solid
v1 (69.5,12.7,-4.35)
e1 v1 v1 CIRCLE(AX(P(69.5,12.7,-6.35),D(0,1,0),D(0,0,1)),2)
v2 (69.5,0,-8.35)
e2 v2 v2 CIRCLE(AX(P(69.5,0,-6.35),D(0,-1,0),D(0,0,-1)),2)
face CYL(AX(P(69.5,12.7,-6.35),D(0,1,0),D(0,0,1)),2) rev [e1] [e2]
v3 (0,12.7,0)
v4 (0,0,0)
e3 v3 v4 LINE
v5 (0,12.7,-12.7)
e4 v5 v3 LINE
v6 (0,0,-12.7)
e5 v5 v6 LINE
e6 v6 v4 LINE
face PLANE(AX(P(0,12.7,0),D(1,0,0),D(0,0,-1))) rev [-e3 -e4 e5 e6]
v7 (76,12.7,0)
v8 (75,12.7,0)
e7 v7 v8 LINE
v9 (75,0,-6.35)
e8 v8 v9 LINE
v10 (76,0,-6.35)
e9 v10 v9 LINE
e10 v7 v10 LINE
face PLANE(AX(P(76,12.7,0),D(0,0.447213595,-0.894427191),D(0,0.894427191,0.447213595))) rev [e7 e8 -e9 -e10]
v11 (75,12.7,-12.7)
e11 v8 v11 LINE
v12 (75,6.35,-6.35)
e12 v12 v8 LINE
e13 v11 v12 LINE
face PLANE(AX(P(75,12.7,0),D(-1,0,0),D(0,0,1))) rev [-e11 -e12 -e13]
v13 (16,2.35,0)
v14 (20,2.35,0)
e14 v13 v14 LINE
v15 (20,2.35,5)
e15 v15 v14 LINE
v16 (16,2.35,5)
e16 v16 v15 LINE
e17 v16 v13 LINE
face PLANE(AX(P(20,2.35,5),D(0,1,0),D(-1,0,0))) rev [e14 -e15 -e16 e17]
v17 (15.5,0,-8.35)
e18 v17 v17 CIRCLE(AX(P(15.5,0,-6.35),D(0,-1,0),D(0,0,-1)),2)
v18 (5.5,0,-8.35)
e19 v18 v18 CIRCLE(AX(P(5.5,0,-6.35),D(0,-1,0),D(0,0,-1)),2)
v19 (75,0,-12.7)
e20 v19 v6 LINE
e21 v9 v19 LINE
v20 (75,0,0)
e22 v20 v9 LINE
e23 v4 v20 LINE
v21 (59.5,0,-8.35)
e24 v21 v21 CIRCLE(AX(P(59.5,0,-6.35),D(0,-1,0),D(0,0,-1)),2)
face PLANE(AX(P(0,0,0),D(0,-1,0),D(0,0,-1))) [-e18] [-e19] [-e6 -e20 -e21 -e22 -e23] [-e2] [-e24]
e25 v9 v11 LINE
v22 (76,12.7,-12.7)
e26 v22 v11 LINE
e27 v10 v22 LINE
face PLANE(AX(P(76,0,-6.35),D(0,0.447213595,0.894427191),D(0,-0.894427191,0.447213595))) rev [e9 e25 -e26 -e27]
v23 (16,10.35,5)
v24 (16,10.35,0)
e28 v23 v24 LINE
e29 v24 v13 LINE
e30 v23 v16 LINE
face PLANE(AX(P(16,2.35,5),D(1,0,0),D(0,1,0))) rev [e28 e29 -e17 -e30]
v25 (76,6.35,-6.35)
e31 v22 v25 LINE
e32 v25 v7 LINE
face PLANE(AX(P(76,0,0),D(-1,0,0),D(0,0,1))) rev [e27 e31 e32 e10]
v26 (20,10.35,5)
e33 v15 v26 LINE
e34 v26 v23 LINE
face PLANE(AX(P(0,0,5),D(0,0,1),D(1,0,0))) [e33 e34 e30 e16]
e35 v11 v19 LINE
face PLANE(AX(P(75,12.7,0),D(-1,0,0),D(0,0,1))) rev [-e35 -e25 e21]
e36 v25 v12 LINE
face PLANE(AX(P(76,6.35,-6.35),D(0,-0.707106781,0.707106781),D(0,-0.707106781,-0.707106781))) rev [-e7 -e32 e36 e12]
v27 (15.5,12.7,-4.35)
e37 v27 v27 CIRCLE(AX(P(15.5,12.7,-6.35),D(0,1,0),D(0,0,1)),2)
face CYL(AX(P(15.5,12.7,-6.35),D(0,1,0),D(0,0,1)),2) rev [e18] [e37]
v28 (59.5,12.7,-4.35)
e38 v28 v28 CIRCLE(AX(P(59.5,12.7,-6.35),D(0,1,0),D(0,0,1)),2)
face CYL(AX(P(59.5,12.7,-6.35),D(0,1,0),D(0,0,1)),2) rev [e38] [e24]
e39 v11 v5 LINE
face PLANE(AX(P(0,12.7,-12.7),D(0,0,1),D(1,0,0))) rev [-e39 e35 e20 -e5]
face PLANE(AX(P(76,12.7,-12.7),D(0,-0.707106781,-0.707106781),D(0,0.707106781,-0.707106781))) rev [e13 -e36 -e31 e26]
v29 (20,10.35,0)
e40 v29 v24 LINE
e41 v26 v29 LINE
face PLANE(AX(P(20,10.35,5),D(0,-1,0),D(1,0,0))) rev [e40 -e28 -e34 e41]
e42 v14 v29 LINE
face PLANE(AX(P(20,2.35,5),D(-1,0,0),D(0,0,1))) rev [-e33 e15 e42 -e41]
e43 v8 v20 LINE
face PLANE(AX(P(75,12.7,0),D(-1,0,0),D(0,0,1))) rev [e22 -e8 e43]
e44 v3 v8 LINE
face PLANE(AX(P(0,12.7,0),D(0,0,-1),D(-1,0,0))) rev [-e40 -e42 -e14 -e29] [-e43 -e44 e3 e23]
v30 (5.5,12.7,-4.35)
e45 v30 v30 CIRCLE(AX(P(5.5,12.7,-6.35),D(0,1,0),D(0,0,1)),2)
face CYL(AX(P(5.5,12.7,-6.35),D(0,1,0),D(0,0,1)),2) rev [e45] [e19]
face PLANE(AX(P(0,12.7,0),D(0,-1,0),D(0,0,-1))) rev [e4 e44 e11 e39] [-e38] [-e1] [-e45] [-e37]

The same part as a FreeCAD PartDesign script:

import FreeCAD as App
import Part
import Sketcher
from FreeCAD import Vector

doc = App.newDocument("Part")
body = doc.addObject("PartDesign::Body", "Body")

# Sketch on XZ plane
sketch1 = doc.addObject("Sketcher::SketchObject", "Sketch")
body.addObject(sketch1)
sketch1.AttachmentSupport = (doc.XZ_Plane, [""])
sketch1.MapMode = "FlatFace"
sketch1.addGeometry([
    Part.LineSegment(Vector(0, -13, 0), Vector(0, 0, 0)),
    Part.LineSegment(Vector(0, 0, 0), Vector(75, 0, 0)),
    Part.LineSegment(Vector(75, 0, 0), Vector(75, -13, 0)),
    Part.LineSegment(Vector(75, -13, 0), Vector(0, -13, 0)),
], False)
sketch1.addConstraint([
    Sketcher.Constraint("Coincident", 0, 2, 1, 1),
    Sketcher.Constraint("Coincident", 1, 2, 2, 1),
    Sketcher.Constraint("Coincident", 2, 2, 3, 1),
    Sketcher.Constraint("Coincident", 3, 2, 0, 1),
    Sketcher.Constraint("Vertical", 0),
    Sketcher.Constraint("Horizontal", 1),
    Sketcher.Constraint("Vertical", 2),
    Sketcher.Constraint("Horizontal", 3),
    Sketcher.Constraint("Coincident", 0, 2, -1, 1),
    Sketcher.Constraint("DistanceX", 1, 1, 1, 2, 75.0),
    Sketcher.Constraint("DistanceY", 0, 1, 0, 2, 12.7),
])
pad1 = doc.addObject("PartDesign::Pad", "Pad")
body.addObject(pad1)
pad1.Profile = sketch1
pad1.Length = 12.7
pad1.Reversed = True

# Sketch on XZ plane
sketch2 = doc.addObject("Sketcher::SketchObject", "Sketch001")
body.addObject(sketch2)
sketch2.AttachmentSupport = (doc.XZ_Plane, [""])
sketch2.MapMode = "FlatFace"
sketch2.AttachmentOffset = App.Placement(Vector(0, 0, -12.7), App.Rotation())
sketch2.addGeometry([
    Part.Circle(Vector(69.5, -6.3, 0), Vector(0, 0, 1), 2),
    Part.Circle(Vector(59.5, -6.3, 0), Vector(0, 0, 1), 2),
    Part.Circle(Vector(5.5, -6.3, 0), Vector(0, 0, 1), 2),
    Part.Circle(Vector(15.5, -6.3, 0), Vector(0, 0, 1), 2),
], False)
sketch2.addConstraint([
    Sketcher.Constraint("Equal", 0, 1),
    Sketcher.Constraint("Equal", 1, 2),
    Sketcher.Constraint("Equal", 2, 3),
    Sketcher.Constraint("Horizontal", 0, 3, 1, 3),
    Sketcher.Constraint("Horizontal", 1, 3, 2, 3),
    Sketcher.Constraint("Horizontal", 2, 3, 3, 3),
    Sketcher.Constraint("Diameter", 0, 4.0),
    Sketcher.Constraint("DistanceX", 1, 3, 0, 3, 10.0),
    Sketcher.Constraint("DistanceX", 2, 3, 1, 3, 54.0),
    Sketcher.Constraint("DistanceX", 2, 3, 3, 3, 10.0),
    Sketcher.Constraint("DistanceX", -1, 1, 0, 3, 69.5),
    Sketcher.Constraint("DistanceY", 0, 3, -1, 1, 6.35),
])
doc.recompute()
hole = doc.addObject("PartDesign::Hole", "Hole")
body.addObject(hole)
hole.Profile = sketch2
hole.ThreadType = "None"
hole.Diameter = 4
hole.DepthType = "Dimension"
hole.Depth = 117.6291
hole.DrillPoint = "Angled"
hole.DrillPointAngle = 118
hole.Reversed = True

# Sketch on XY plane
sketch3 = doc.addObject("Sketcher::SketchObject", "Sketch002")
body.addObject(sketch3)
sketch3.AttachmentSupport = (doc.XY_Plane, [""])
sketch3.MapMode = "FlatFace"
sketch3.addGeometry([
    Part.LineSegment(Vector(16, 10.3, 0), Vector(16, 2.4, 0)),
    Part.LineSegment(Vector(16, 2.4, 0), Vector(20, 2.4, 0)),
    Part.LineSegment(Vector(20, 2.4, 0), Vector(20, 10.3, 0)),
    Part.LineSegment(Vector(20, 10.3, 0), Vector(16, 10.3, 0)),
], False)
sketch3.addConstraint([
    Sketcher.Constraint("Coincident", 0, 2, 1, 1),
    Sketcher.Constraint("Coincident", 1, 2, 2, 1),
    Sketcher.Constraint("Coincident", 2, 2, 3, 1),
    Sketcher.Constraint("Coincident", 3, 2, 0, 1),
    Sketcher.Constraint("Vertical", 0),
    Sketcher.Constraint("Horizontal", 1),
    Sketcher.Constraint("Vertical", 2),
    Sketcher.Constraint("Horizontal", 3),
    Sketcher.Constraint("DistanceX", 1, 1, 1, 2, 4.0),
    Sketcher.Constraint("DistanceY", 0, 2, 0, 1, 8.0),
    Sketcher.Constraint("DistanceX", -1, 1, 0, 2, 16.0),
    Sketcher.Constraint("DistanceY", -1, 1, 0, 2, 2.35),
])
pad2 = doc.addObject("PartDesign::Pad", "Pad001")
body.addObject(pad2)
pad2.Profile = sketch3
pad2.Length = 5

# Sketch on YZ plane
sketch4 = doc.addObject("Sketcher::SketchObject", "Sketch003")
body.addObject(sketch4)
sketch4.AttachmentSupport = (doc.YZ_Plane, [""])
sketch4.MapMode = "FlatFace"
sketch4.AttachmentOffset = App.Placement(Vector(0, 0, 75), App.Rotation())
sketch4.addGeometry([
    Part.LineSegment(Vector(0, -6, 0), Vector(13, -13, 0)),
    Part.LineSegment(Vector(13, -13, 0), Vector(6, -6, 0)),
    Part.LineSegment(Vector(6, -6, 0), Vector(13, 0, 0)),
    Part.LineSegment(Vector(13, 0, 0), Vector(0, -6, 0)),
], False)
sketch4.addConstraint([
    Sketcher.Constraint("Coincident", 0, 2, 1, 1),
    Sketcher.Constraint("Coincident", 1, 2, 2, 1),
    Sketcher.Constraint("Coincident", 2, 2, 3, 1),
    Sketcher.Constraint("Coincident", 3, 2, 0, 1),
    Sketcher.Constraint("PointOnObject", 2, 2, -1),
    Sketcher.Constraint("PointOnObject", 3, 2, -2),
    Sketcher.Constraint("Perpendicular", 1, 2),
    Sketcher.Constraint("Horizontal", 1, 2, 3, 2),
    Sketcher.Constraint("Vertical", 0, 2, 2, 2),
    Sketcher.Constraint("Equal", 1, 2),
    Sketcher.Constraint("DistanceX", -1, 1, 0, 2, 12.7),
    Sketcher.Constraint("DistanceY", 0, 2, -1, 1, 12.7),
])
pad3 = doc.addObject("PartDesign::Pad", "Pad002")
body.addObject(pad3)
pad3.Profile = sketch4
pad3.Length = 1

doc.recompute()
